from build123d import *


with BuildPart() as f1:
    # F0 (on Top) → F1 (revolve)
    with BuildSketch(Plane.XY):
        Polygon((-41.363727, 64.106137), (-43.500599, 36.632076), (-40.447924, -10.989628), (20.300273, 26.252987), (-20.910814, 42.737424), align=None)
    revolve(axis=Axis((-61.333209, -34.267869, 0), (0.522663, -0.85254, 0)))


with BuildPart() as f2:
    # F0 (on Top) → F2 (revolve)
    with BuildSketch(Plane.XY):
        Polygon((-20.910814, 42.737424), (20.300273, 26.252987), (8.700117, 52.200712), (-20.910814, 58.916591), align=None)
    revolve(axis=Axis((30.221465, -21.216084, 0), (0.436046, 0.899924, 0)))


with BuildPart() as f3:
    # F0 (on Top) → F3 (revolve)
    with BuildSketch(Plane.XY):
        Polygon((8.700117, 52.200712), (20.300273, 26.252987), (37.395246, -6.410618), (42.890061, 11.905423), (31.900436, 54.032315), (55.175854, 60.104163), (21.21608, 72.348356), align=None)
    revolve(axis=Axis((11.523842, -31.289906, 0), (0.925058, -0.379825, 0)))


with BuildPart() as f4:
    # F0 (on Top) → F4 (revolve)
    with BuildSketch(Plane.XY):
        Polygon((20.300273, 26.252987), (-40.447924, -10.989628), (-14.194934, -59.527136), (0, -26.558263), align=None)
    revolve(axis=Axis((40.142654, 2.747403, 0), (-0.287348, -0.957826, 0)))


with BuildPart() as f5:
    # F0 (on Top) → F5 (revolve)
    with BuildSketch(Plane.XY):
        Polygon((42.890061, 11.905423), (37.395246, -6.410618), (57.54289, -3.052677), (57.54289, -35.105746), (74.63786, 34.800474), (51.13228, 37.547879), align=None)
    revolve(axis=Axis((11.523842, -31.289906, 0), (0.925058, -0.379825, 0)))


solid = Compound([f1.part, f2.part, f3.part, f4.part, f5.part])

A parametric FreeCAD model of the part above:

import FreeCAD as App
import Part
import Sketcher

V = App.Vector

doc = App.newDocument("Part")
body = doc.addObject("PartDesign::Body", "Body")

# Sketch on XY plane
sketch1 = body.newObject("Sketcher::SketchObject", "Sketch")
sketch1.AttachmentSupport = (doc.getObject("XY_Plane"), [""])
sketch1.MapMode = "FlatFace"
sketch1.addGeometry(Part.LineSegment(V(-41.363727, 64.106137, 0), V(-43.500599, 36.632076, 0)), False)
sketch1.addGeometry(Part.LineSegment(V(-43.500599, 36.632076, 0), V(-40.447924, -10.989628, 0)), False)
sketch1.addGeometry(Part.LineSegment(V(-40.447924, -10.989628, 0), V(20.300273, 26.252987, 0)), False)
sketch1.addGeometry(Part.LineSegment(V(20.300273, 26.252987, 0), V(-20.910814, 42.737424, 0)), False)
sketch1.addGeometry(Part.LineSegment(V(-20.910814, 42.737424, 0), V(-41.363727, 64.106137, 0)), False)
sketch1.addGeometry(Part.LineSegment(V(-99.712556, 28.334474, 0), V(-66.000402, -26.654993, 0)), True)  # axis
sketch1.addConstraint(Sketcher.Constraint("Coincident", 0, 2, 1, 1))
sketch1.addConstraint(Sketcher.Constraint("Coincident", 1, 2, 2, 1))
sketch1.addConstraint(Sketcher.Constraint("Coincident", 2, 2, 3, 1))
sketch1.addConstraint(Sketcher.Constraint("Coincident", 3, 2, 4, 1))
sketch1.addConstraint(Sketcher.Constraint("Coincident", 4, 2, 0, 1))
sketch1.addConstraint(Sketcher.Constraint("Perpendicular", 2, 5))
sketch1.addConstraint(Sketcher.Constraint("DistanceX", 4, 2, 2, 2, 61.664))
sketch1.addConstraint(Sketcher.Constraint("Distance", 3, 44.3857))
sketch1.addConstraint(Sketcher.Constraint("DistanceX", 0, 2, -1, 1, 43.500599))
sketch1.addConstraint(Sketcher.Constraint("DistanceX", 5, 2, -1, 1, 66.000402))
sketch1.addConstraint(Sketcher.Constraint("DistanceY", 1, 2, 5, 1, 39.324102))
sketch1.addConstraint(Sketcher.Constraint("Distance", 5, 64.500781))
sketch1.addConstraint(Sketcher.Constraint("DistanceX", 0, 2, 2, 2, 63.800872))
sketch1.addConstraint(Sketcher.Constraint("DistanceY", 2, 2, 0, 2, 10.379089))
sketch1.addConstraint(Sketcher.Constraint("DistanceX", 1, 2, 3, 2, 19.53711))
sketch1.addConstraint(Sketcher.Constraint("DistanceY", 0, 2, 4, 2, 27.474061))
sketch1.addConstraint(Sketcher.Constraint("DistanceX", 5, 1, 4, 2, 58.348829))
sketch1.addConstraint(Sketcher.Constraint("DistanceX", 5, 1, 1, 2, 59.264632))
sketch1.addConstraint(Sketcher.Constraint("DistanceY", -1, 1, 0, 2, 36.632076))
revolution = body.newObject("PartDesign::Revolution", "Revolution")
revolution.Profile = sketch1
revolution.ReferenceAxis = (sketch1, ["Axis0"])
revolution.Angle = 360
body2 = doc.addObject("PartDesign::Body", "Body001")

# Sketch on XY plane
sketch2 = body2.newObject("Sketcher::SketchObject", "Sketch001")
sketch2.AttachmentSupport = (doc.getObject("XY_Plane001"), [""])
sketch2.MapMode = "FlatFace"
sketch2.addGeometry(Part.LineSegment(V(-20.910814, 42.737424, 0), V(20.300273, 26.252987, 0)), False)
sketch2.addGeometry(Part.LineSegment(V(20.300273, 26.252987, 0), V(8.700117, 52.200712, 0)), False)
sketch2.addGeometry(Part.LineSegment(V(8.700117, 52.200712, 0), V(-20.910814, 58.916591, 0)), False)
sketch2.addGeometry(Part.LineSegment(V(-20.910814, 58.916591, 0), V(-20.910814, 42.737424, 0)), False)
sketch2.addGeometry(Part.LineSegment(V(45.595267, 10.512802, 0), V(54.938854, 29.796358, 0)), True)  # axis
sketch2.addConstraint(Sketcher.Constraint("Coincident", 0, 2, 1, 1))
sketch2.addConstraint(Sketcher.Constraint("Coincident", 1, 2, 2, 1))
sketch2.addConstraint(Sketcher.Constraint("Coincident", 2, 2, 3, 1))
sketch2.addConstraint(Sketcher.Constraint("Coincident", 3, 2, 0, 1))
sketch2.addConstraint(Sketcher.Constraint("Vertical", 3))
sketch2.addConstraint(Sketcher.Constraint("Distance", 0, 44.3857))
sketch2.addConstraint(Sketcher.Constraint("DistanceY", -1, 1, 4, 1, 10.512802))
sketch2.addConstraint(Sketcher.Constraint("DistanceY", 3, 2, 3, 1, 16.179167))
sketch2.addConstraint(Sketcher.Constraint("DistanceY", -1, 1, 2, 2, 58.916591))
sketch2.addConstraint(Sketcher.Constraint("DistanceX", 2, 2, 1, 2, 29.610931))
sketch2.addConstraint(Sketcher.Constraint("DistanceY", 1, 2, 2, 2, 6.715879))
sketch2.addConstraint(Sketcher.Constraint("DistanceX", 1, 2, 4, 1, 36.89515))
sketch2.addConstraint(Sketcher.Constraint("DistanceX", 0, 2, 4, 2, 34.638581))
sketch2.addConstraint(Sketcher.Constraint("DistanceY", 0, 2, 4, 2, 3.543371))
sketch2.addConstraint(Sketcher.Constraint("Distance", 1, 28.422668))
sketch2.addConstraint(Sketcher.Constraint("DistanceX", -1, 1, 0, 2, 20.300273))
revolution2 = body2.newObject("PartDesign::Revolution", "Revolution001")
revolution2.Profile = sketch2
revolution2.ReferenceAxis = (sketch2, ["Axis0"])
revolution2.Angle = 360
body3 = doc.addObject("PartDesign::Body", "Body002")

# Sketch on XY plane
sketch3 = body3.newObject("Sketcher::SketchObject", "Sketch002")
sketch3.AttachmentSupport = (doc.getObject("XY_Plane002"), [""])
sketch3.MapMode = "FlatFace"
sketch3.addGeometry(Part.LineSegment(V(8.700117, 52.200712, 0), V(20.300273, 26.252987, 0)), False)
sketch3.addGeometry(Part.LineSegment(V(20.300273, 26.252987, 0), V(37.395246, -6.410618, 0)), False)
sketch3.addGeometry(Part.LineSegment(V(37.395246, -6.410618, 0), V(42.890061, 11.905423, 0)), False)
sketch3.addGeometry(Part.LineSegment(V(42.890061, 11.905423, 0), V(31.900436, 54.032315, 0)), False)
sketch3.addGeometry(Part.LineSegment(V(31.900436, 54.032315, 0), V(55.175854, 60.104163, 0)), False)
sketch3.addGeometry(Part.LineSegment(V(55.175854, 60.104163, 0), V(21.21608, 72.348356, 0)), False)
sketch3.addGeometry(Part.LineSegment(V(21.21608, 72.348356, 0), V(8.700117, 52.200712, 0)), False)
sketch3.addGeometry(Part.LineSegment(V(-20.227808, -18.252809, 0), V(24.921257, -36.790829, 0)), True)  # axis
sketch3.addConstraint(Sketcher.Constraint("Coincident", 0, 2, 1, 1))
sketch3.addConstraint(Sketcher.Constraint("Coincident", 1, 2, 2, 1))
sketch3.addConstraint(Sketcher.Constraint("Coincident", 2, 2, 3, 1))
sketch3.addConstraint(Sketcher.Constraint("Coincident", 3, 2, 4, 1))
sketch3.addConstraint(Sketcher.Constraint("Coincident", 4, 2, 5, 1))
sketch3.addConstraint(Sketcher.Constraint("Coincident", 5, 2, 6, 1))
sketch3.addConstraint(Sketcher.Constraint("Coincident", 6, 2, 0, 1))
sketch3.addConstraint(Sketcher.Constraint("Perpendicular", 3, 4))
sketch3.addConstraint(Sketcher.Constraint("Distance", 1, 36.866641))
sketch3.addConstraint(Sketcher.Constraint("Distance", 2, 19.122509))
sketch3.addConstraint(Sketcher.Constraint("Distance", 3, 43.53673))
sketch3.addConstraint(Sketcher.Constraint("DistanceY", 1, 2, -1, 1, 6.410618))
sketch3.addConstraint(Sketcher.Constraint("DistanceX", -1, 1, 2, 2, 42.890061))
sketch3.addConstraint(Sketcher.Constraint("DistanceX", -1, 1, 5, 2, 21.21608))
sketch3.addConstraint(Sketcher.Constraint("DistanceX", 7, 1, -1, 1, 20.227808))
sketch3.addConstraint(Sketcher.Constraint("DistanceY", 7, 1, -1, 1, 18.252809))
sketch3.addConstraint(Sketcher.Constraint("DistanceY", 7, 2, -1, 1, 36.790829))
sketch3.addConstraint(Sketcher.Constraint("DistanceY", 1, 2, 2, 2, 18.316041))
sketch3.addConstraint(Sketcher.Constraint("DistanceX", 0, 2, 2, 2, 22.589788))
sketch3.addConstraint(Sketcher.Constraint("DistanceY", 2, 2, 3, 2, 42.126892))
sketch3.addConstraint(Sketcher.Constraint("DistanceX", 3, 2, 4, 2, 23.275418))
sketch3.addConstraint(Sketcher.Constraint("DistanceY", 3, 2, 5, 2, 18.316041))
sketch3.addConstraint(Sketcher.Constraint("DistanceX", 6, 2, 3, 2, 23.200319))
sketch3.addConstraint(Sketcher.Constraint("DistanceY", 6, 2, 4, 2, 7.903451))
sketch3.addConstraint(Sketcher.Constraint("DistanceX", 7, 2, 1, 2, 12.473989))
revolution3 = body3.newObject("PartDesign::Revolution", "Revolution002")
revolution3.Profile = sketch3
revolution3.ReferenceAxis = (sketch3, ["Axis0"])
revolution3.Angle = 360
body4 = doc.addObject("PartDesign::Body", "Body003")

# Sketch on XY plane
sketch4 = body4.newObject("Sketcher::SketchObject", "Sketch003")
sketch4.AttachmentSupport = (doc.getObject("XY_Plane003"), [""])
sketch4.MapMode = "FlatFace"
sketch4.addGeometry(Part.LineSegment(V(20.300273, 26.252987, 0), V(-40.447924, -10.989628, 0)), False)
sketch4.addGeometry(Part.LineSegment(V(-40.447924, -10.989628, 0), V(-14.194934, -59.527136, 0)), False)
sketch4.addGeometry(Part.LineSegment(V(-14.194934, -59.527136, 0), V(0, -26.558263, 0)), False)
sketch4.addGeometry(Part.LineSegment(V(0, -26.558263, 0), V(20.300273, 26.252987, 0)), False)
sketch4.addGeometry(Part.LineSegment(V(44.973721, 18.850948, 0), V(18.516267, -69.340503, 0)), True)  # axis
sketch4.addConstraint(Sketcher.Constraint("Coincident", 0, 2, 1, 1))
sketch4.addConstraint(Sketcher.Constraint("Coincident", 1, 2, 2, 1))
sketch4.addConstraint(Sketcher.Constraint("Coincident", 2, 2, 3, 1))
sketch4.addConstraint(Sketcher.Constraint("Coincident", 3, 2, 0, 1))
sketch4.addConstraint(Sketcher.Constraint("PointOnObject", 2, 2, -2))
sketch4.addConstraint(Sketcher.Constraint("DistanceX", 1, 2, 4, 2, 32.711201))
sketch4.addConstraint(Sketcher.Constraint("DistanceX", -1, 1, 4, 1, 44.973721))
sketch4.addConstraint(Sketcher.Constraint("DistanceX", 0, 2, 1, 2, 26.25299))
sketch4.addConstraint(Sketcher.Constraint("DistanceY", 1, 2, 0, 2, 48.537508))
sketch4.addConstraint(Sketcher.Constraint("DistanceY", 2, 2, 3, 2, 52.81125))
sketch4.addConstraint(Sketcher.Constraint("DistanceY", 4, 1, 3, 2, 7.402039))
sketch4.addConstraint(Sketcher.Constraint("DistanceY", 4, 2, 2, 2, 42.78224))
sketch4.addConstraint(Sketcher.Constraint("Distance", 0, 71.255567))
sketch4.addConstraint(Sketcher.Constraint("Distance", 2, 35.894885))
sketch4.addConstraint(Sketcher.Constraint("Distance", 3, 56.578523))
sketch4.addConstraint(Sketcher.Constraint("DistanceY", 0, 2, -1, 1, 10.989628))
revolution4 = body4.newObject("PartDesign::Revolution", "Revolution003")
revolution4.Profile = sketch4
revolution4.ReferenceAxis = (sketch4, ["Axis0"])
revolution4.Angle = 360
body5 = doc.addObject("PartDesign::Body", "Body004")

# Sketch on XY plane
sketch5 = body5.newObject("Sketcher::SketchObject", "Sketch004")
sketch5.AttachmentSupport = (doc.getObject("XY_Plane004"), [""])
sketch5.MapMode = "FlatFace"
sketch5.addGeometry(Part.LineSegment(V(42.890061, 11.905423, 0), V(37.395246, -6.410618, 0)), False)
sketch5.addGeometry(Part.LineSegment(V(37.395246, -6.410618, 0), V(57.54289, -3.052677, 0)), False)
sketch5.addGeometry(Part.LineSegment(V(57.54289, -3.052677, 0), V(57.54289, -35.105746, 0)), False)
sketch5.addGeometry(Part.LineSegment(V(57.54289, -35.105746, 0), V(74.63786, 34.800474, 0)), False)
sketch5.addGeometry(Part.LineSegment(V(74.63786, 34.800474, 0), V(51.13228, 37.547879, 0)), False)
sketch5.addGeometry(Part.LineSegment(V(51.13228, 37.547879, 0), V(42.890061, 11.905423, 0)), False)
sketch5.addGeometry(Part.LineSegment(V(21.231214, -35.275713, 0), V(52.244589, -48.009677, 0)), True)  # axis
sketch5.addConstraint(Sketcher.Constraint("Coincident", 0, 2, 1, 1))
sketch5.addConstraint(Sketcher.Constraint("Coincident", 1, 2, 2, 1))
sketch5.addConstraint(Sketcher.Constraint("Coincident", 2, 2, 3, 1))
sketch5.addConstraint(Sketcher.Constraint("Coincident", 3, 2, 4, 1))
sketch5.addConstraint(Sketcher.Constraint("Coincident", 4, 2, 5, 1))
sketch5.addConstraint(Sketcher.Constraint("Coincident", 5, 2, 0, 1))
sketch5.addConstraint(Sketcher.Constraint("Vertical", 2))
sketch5.addConstraint(Sketcher.Constraint("DistanceY", 6, 2, 1, 2, 44.957))
sketch5.addConstraint(Sketcher.Constraint("DistanceY", 2, 2, 2, 1, 32.053069))
sketch5.addConstraint(Sketcher.Constraint("DistanceY", 1, 2, 5, 2, 14.9581))
sketch5.addConstraint(Sketcher.Constraint("DistanceX", 5, 2, 3, 2, 31.747799))
sketch5.addConstraint(Sketcher.Constraint("DistanceX", 6, 2, 2, 2, 5.298301))
sketch5.addConstraint(Sketcher.Constraint("Distance", 0, 19.122509))
sketch5.addConstraint(Sketcher.Constraint("Distance", 6, 33.52586))
sketch5.addConstraint(Sketcher.Constraint("DistanceY", 0, 2, -1, 1, 6.410618))
sketch5.addConstraint(Sketcher.Constraint("DistanceX", -1, 1, 1, 2, 57.54289))
sketch5.addConstraint(Sketcher.Constraint("DistanceX", -1, 1, 3, 2, 74.63786))
sketch5.addConstraint(Sketcher.Constraint("DistanceX", -1, 1, 4, 2, 51.13228))
sketch5.addConstraint(Sketcher.Constraint("DistanceY", -1, 1, 4, 2, 37.547879))
sketch5.addConstraint(Sketcher.Constraint("DistanceY", 0, 2, 1, 2, 3.357941))
sketch5.addConstraint(Sketcher.Constraint("DistanceY", 1, 2, 3, 2, 37.853151))
sketch5.addConstraint(Sketcher.Constraint("DistanceY", 6, 1, 4, 2, 72.823592))
revolution5 = body5.newObject("PartDesign::Revolution", "Revolution004")
revolution5.Profile = sketch5
revolution5.ReferenceAxis = (sketch5, ["Axis0"])
revolution5.Angle = 360

doc.recompute()
